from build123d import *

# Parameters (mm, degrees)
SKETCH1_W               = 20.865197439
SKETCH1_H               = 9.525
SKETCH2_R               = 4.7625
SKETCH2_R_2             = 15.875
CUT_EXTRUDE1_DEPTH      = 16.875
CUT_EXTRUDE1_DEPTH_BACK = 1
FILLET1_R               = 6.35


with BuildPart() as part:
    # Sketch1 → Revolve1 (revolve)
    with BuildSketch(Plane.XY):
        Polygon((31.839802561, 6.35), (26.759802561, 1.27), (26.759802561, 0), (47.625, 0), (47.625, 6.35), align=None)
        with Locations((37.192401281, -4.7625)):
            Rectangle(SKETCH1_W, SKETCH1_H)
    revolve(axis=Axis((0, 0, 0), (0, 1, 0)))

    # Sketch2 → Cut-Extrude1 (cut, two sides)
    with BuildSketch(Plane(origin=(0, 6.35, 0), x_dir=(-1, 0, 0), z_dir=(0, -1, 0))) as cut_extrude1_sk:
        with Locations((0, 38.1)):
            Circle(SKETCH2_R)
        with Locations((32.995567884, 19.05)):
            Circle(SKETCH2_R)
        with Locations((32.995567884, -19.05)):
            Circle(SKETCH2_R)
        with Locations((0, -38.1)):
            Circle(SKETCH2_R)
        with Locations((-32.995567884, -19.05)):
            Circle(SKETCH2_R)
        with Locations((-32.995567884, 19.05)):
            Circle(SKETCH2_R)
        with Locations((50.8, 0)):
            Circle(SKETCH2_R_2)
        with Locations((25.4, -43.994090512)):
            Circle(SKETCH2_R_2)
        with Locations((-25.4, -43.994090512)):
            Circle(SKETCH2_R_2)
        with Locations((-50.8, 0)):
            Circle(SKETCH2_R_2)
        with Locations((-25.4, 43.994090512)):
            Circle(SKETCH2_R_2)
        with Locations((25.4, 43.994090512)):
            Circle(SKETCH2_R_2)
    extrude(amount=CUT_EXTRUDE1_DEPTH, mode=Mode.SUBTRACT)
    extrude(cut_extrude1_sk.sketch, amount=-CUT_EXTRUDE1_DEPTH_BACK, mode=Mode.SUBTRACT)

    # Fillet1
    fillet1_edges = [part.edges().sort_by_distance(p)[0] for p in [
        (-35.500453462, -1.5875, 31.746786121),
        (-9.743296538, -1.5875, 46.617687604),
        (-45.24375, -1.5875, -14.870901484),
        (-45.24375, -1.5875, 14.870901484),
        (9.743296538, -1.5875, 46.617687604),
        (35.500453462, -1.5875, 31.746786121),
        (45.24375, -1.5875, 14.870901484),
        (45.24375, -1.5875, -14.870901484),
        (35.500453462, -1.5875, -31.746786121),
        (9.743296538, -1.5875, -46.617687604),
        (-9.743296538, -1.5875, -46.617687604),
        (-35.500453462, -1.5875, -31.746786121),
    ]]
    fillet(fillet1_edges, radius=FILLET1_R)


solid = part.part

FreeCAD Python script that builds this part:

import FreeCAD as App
import Part
import Sketcher
from FreeCAD import Vector
Q = App.Units.Quantity


def edges_at(feature, points):
    """Names of the edges that pass closest to the given points."""
    edges = feature.Shape.Edges
    near = lambda p: min(range(len(edges)), key=lambda i: edges[i].distToShape(Part.Vertex(*p))[0])
    return sorted({f"Edge{near(p) + 1}" for p in points})


def add_polygon(sketch, points):
    """Adds a closed chain of lines whose ends are joined by coincident constraints."""
    first, n = sketch.GeometryCount, len(points)
    for a, b in zip(points, points[1:] + points[:1]):
        sketch.addGeometry(Part.LineSegment(App.Vector(*a, 0), App.Vector(*b, 0)), False)
    for i in range(n):
        sketch.addConstraint(Sketcher.Constraint("Coincident", first + i, 2, first + (i + 1) % n, 1))

doc = App.newDocument("Part")
body = doc.addObject("PartDesign::Body", "Body")

sketch1 = body.newObject("Sketcher::SketchObject", "Sketch")
sketch1.AttachmentSupport = (doc.getObject("XY_Plane"), [""])
sketch1.MapMode = "FlatFace"
add_polygon(sketch1, [(31.8, 6.3), (26.8, 1.3), (26.8, 0), (26.8, -9.5), (47.6, -9.5), (47.6, 0), (47.6, 6.3)])
sketch1.addConstraint([
    Sketcher.Constraint("Vertical", 1),
    Sketcher.Constraint("Vertical", 2),
    Sketcher.Constraint("Horizontal", 3),
    Sketcher.Constraint("Vertical", 4),
    Sketcher.Constraint("Vertical", 5),
    Sketcher.Constraint("Horizontal", 6),
    Sketcher.Constraint("PointOnObject", 1, 2, -1),
    Sketcher.Constraint("PointOnObject", 4, 2, -1),
    Sketcher.Constraint("Angle", 0, Q("-135 deg")),
    Sketcher.Constraint("DistanceY", 1, 2, 1, 1, Q("0.05 in")),
    Sketcher.Constraint("DistanceY", 5, 1, 5, 2, Q("0.25 in")),
    Sketcher.Constraint("DistanceY", 2, 2, 2, 1, Q("0.375 in")),
    Sketcher.Constraint("DistanceX", -1, 1, 3, 2, Q("1.875 in")),
    Sketcher.Constraint("DistanceX", 3, 1, 3, 2, Q("20.865197 mm")),
])
revolution = body.newObject("PartDesign::Revolution", "Revolution")
revolution.Profile = sketch1
revolution.ReferenceAxis = (sketch1, ["V_Axis"])
revolution.Angle = 360

sketch2 = body.newObject("Sketcher::SketchObject", "Sketch001")
sketch2.AttachmentSupport = (doc.getObject("XZ_Plane"), [""])
sketch2.MapMode = "FlatFace"
sketch2.AttachmentOffset = App.Placement(Vector(0, 0, -0.25 * 25.4), App.Rotation())
sketch2.addGeometry([
    Part.Circle(Vector(0, -38.1, 0), Vector(0, 0, 1), 4.8),
    Part.Circle(Vector(-33, -19.1, 0), Vector(0, 0, 1), 4.8),
    Part.Circle(Vector(-33, 19.1, 0), Vector(0, 0, 1), 4.8),
    Part.Circle(Vector(0, 38.1, 0), Vector(0, 0, 1), 4.8),
    Part.Circle(Vector(33, 19.1, 0), Vector(0, 0, 1), 4.8),
    Part.Circle(Vector(33, -19.1, 0), Vector(0, 0, 1), 4.8),
    Part.Circle(Vector(-50.8, 0, 0), Vector(0, 0, 1), 15.9),
    Part.Circle(Vector(-25.4, 44, 0), Vector(0, 0, 1), 15.9),
    Part.Circle(Vector(25.4, 44, 0), Vector(0, 0, 1), 15.9),
    Part.Circle(Vector(50.8, 0, 0), Vector(0, 0, 1), 15.9),
    Part.Circle(Vector(25.4, -44, 0), Vector(0, 0, 1), 15.9),
    Part.Circle(Vector(-25.4, -44, 0), Vector(0, 0, 1), 15.9),
], False)
sketch2.addConstraint([
    Sketcher.Constraint("Equal", 0, 1),
    Sketcher.Constraint("Equal", 1, 2),
    Sketcher.Constraint("Equal", 2, 3),
    Sketcher.Constraint("Equal", 3, 4),
    Sketcher.Constraint("Equal", 4, 5),
    Sketcher.Constraint("Equal", 6, 7),
    Sketcher.Constraint("Equal", 7, 8),
    Sketcher.Constraint("Equal", 8, 9),
    Sketcher.Constraint("Equal", 9, 10),
    Sketcher.Constraint("Equal", 10, 11),
    Sketcher.Constraint("Symmetric", 0, 3, 3, 3, -1, 1),
    Sketcher.Constraint("Symmetric", 1, 3, 4, 3, -1, 1),
    Sketcher.Constraint("Symmetric", 2, 3, 5, 3, -1, 1),
    Sketcher.Constraint("Symmetric", 6, 3, 9, 3, -1, 1),
    Sketcher.Constraint("Symmetric", 7, 3, 10, 3, -1, 1),
    Sketcher.Constraint("Symmetric", 8, 3, 11, 3, -1, 1),
    Sketcher.Constraint("Symmetric", 2, 3, 4, 3, -2),
    Sketcher.Constraint("Symmetric", 7, 3, 8, 3, -2),
    Sketcher.Constraint("PointOnObject", 0, 3, -2),
    Sketcher.Constraint("PointOnObject", 6, 3, -1),
    Sketcher.Constraint("Diameter", 6, Q("1.25 in")),
    Sketcher.Constraint("Diameter", 0, Q("0.375 in")),
    Sketcher.Constraint("DistanceX", 6, 3, -1, 1, Q("2 in")),
    Sketcher.Constraint("DistanceX", 7, 3, -1, 1, Q("1 in")),
    Sketcher.Constraint("DistanceY", 0, 3, 3, 3, Q("3 in")),
    Sketcher.Constraint("DistanceY", 1, 3, 2, 3, Q("1.5 in")),
    Sketcher.Constraint("DistanceY", -1, 1, 7, 3, Q("43.994091 mm")),
    Sketcher.Constraint("DistanceX", 1, 3, -1, 1, Q("32.995568 mm")),
])
pocket1 = body.newObject("PartDesign::Pocket", "Pocket")
pocket1.Profile = sketch2
pocket1.Type = "ThroughAll"
pocket1.Midplane = True
doc.recompute()

fillet = body.newObject("PartDesign::Fillet", "Fillet")
fillet.Base = (pocket1, edges_at(pocket1, [
    (-35.5, -1.587, 31.747),
    (-9.743, -1.587, 46.618),
    (-45.244, -1.587, -14.871),
    (-45.244, -1.587, 14.871),
    (9.743, -1.587, 46.618),
    (35.5, -1.587, 31.747),
    (45.244, -1.587, 14.871),
    (45.244, -1.587, -14.871),
    (35.5, -1.587, -31.747),
    (9.743, -1.587, -46.618),
    (-9.743, -1.587, -46.618),
    (-35.5, -1.587, -31.747),
]))
fillet.Radius = Q("0.25 in")

doc.recompute()
